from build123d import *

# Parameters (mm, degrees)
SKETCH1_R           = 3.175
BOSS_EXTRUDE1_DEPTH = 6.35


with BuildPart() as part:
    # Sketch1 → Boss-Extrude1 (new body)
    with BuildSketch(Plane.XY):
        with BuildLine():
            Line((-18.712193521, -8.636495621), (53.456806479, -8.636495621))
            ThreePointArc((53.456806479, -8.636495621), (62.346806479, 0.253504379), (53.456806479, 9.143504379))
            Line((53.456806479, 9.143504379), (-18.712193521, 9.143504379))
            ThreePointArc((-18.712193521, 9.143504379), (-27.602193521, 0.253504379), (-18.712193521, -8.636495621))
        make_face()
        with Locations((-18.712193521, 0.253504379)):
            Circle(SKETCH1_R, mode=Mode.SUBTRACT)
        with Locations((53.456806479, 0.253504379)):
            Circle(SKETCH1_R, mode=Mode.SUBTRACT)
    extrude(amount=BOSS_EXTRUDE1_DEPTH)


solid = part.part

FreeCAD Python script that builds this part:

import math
import FreeCAD as App
import Part
import Sketcher
from FreeCAD import Vector
Q = App.Units.Quantity

doc = App.newDocument("Part")
params = doc.addObject("Spreadsheet::Sheet", "Params")
for row, (alias, value) in enumerate([
    ("sketch1_diameter", "0.25 in"),
    ("sketch1_radius", "0.35 in"),
    ("pad1_length", "0.25 in"),
], start=1):
    params.set(f"A{row}", alias)
    params.set(f"B{row}", "=" + value)
    params.setAlias(f"B{row}", alias)

body = doc.addObject("PartDesign::Body", "Body")

sketch1 = body.newObject("Sketcher::SketchObject", "Sketch")
sketch1.AttachmentSupport = (doc.getObject("XY_Plane"), [""])
sketch1.MapMode = "FlatFace"
sketch1.addGeometry(Part.LineSegment(Vector(-18.7, -8.6, 0), Vector(53.5, -8.6, 0)), False)
sketch1.addGeometry(Part.ArcOfCircle(Part.Circle(Vector(53.5, 0.3, 0), Vector(0, 0, 1), 8.9), math.radians(-90), math.radians(90)), False)
sketch1.addGeometry(Part.LineSegment(Vector(53.5, 9.1, 0), Vector(-18.7, 9.1, 0)), False)
sketch1.addGeometry(Part.ArcOfCircle(Part.Circle(Vector(-18.7, 0.3, 0), Vector(0, 0, 1), 8.9), math.radians(90), math.radians(270)), False)
sketch1.addGeometry(Part.Circle(Vector(-18.7, 0.3, 0), Vector(0, 0, 1), 3.2), False)
sketch1.addGeometry(Part.Circle(Vector(53.5, 0.3, 0), Vector(0, 0, 1), 3.2), False)
sketch1.addConstraint(Sketcher.Constraint("Tangent", 0, 2, 1, 1))
sketch1.addConstraint(Sketcher.Constraint("Tangent", 1, 2, 2, 1))
sketch1.addConstraint(Sketcher.Constraint("Tangent", 2, 2, 3, 1))
sketch1.addConstraint(Sketcher.Constraint("Tangent", 3, 2, 0, 1))
sketch1.addConstraint(Sketcher.Constraint("Horizontal", 0))
sketch1.addConstraint(Sketcher.Constraint("Horizontal", 2))
sketch1.addConstraint(Sketcher.Constraint("Coincident", 4, 3, 3, 3))
sketch1.addConstraint(Sketcher.Constraint("Coincident", 5, 3, 1, 3))
sketch1.addConstraint(Sketcher.Constraint("Equal", 4, 5))
sketch1.addConstraint(Sketcher.Constraint("Diameter", 4, Q("0.25 in")))
sketch1.addConstraint(Sketcher.Constraint("Radius", 1, Q("0.35 in")))
sketch1.addConstraint(Sketcher.Constraint("DistanceX", 0, 1, 0, 2, Q("72.169 mm")))
sketch1.addConstraint(Sketcher.Constraint("DistanceX", -1, 1, 1, 3, Q("53.456806 mm")))
sketch1.addConstraint(Sketcher.Constraint("DistanceY", -1, 1, 1, 3, Q("0.253504 mm")))
sketch1.setExpression("Constraints[9]", "Params.sketch1_diameter")
sketch1.setExpression("Constraints[10]", "Params.sketch1_radius")
pad1 = body.newObject("PartDesign::Pad", "Pad")
pad1.Profile = sketch1
pad1.setExpression("Length", "Params.pad1_length")

doc.recompute()
